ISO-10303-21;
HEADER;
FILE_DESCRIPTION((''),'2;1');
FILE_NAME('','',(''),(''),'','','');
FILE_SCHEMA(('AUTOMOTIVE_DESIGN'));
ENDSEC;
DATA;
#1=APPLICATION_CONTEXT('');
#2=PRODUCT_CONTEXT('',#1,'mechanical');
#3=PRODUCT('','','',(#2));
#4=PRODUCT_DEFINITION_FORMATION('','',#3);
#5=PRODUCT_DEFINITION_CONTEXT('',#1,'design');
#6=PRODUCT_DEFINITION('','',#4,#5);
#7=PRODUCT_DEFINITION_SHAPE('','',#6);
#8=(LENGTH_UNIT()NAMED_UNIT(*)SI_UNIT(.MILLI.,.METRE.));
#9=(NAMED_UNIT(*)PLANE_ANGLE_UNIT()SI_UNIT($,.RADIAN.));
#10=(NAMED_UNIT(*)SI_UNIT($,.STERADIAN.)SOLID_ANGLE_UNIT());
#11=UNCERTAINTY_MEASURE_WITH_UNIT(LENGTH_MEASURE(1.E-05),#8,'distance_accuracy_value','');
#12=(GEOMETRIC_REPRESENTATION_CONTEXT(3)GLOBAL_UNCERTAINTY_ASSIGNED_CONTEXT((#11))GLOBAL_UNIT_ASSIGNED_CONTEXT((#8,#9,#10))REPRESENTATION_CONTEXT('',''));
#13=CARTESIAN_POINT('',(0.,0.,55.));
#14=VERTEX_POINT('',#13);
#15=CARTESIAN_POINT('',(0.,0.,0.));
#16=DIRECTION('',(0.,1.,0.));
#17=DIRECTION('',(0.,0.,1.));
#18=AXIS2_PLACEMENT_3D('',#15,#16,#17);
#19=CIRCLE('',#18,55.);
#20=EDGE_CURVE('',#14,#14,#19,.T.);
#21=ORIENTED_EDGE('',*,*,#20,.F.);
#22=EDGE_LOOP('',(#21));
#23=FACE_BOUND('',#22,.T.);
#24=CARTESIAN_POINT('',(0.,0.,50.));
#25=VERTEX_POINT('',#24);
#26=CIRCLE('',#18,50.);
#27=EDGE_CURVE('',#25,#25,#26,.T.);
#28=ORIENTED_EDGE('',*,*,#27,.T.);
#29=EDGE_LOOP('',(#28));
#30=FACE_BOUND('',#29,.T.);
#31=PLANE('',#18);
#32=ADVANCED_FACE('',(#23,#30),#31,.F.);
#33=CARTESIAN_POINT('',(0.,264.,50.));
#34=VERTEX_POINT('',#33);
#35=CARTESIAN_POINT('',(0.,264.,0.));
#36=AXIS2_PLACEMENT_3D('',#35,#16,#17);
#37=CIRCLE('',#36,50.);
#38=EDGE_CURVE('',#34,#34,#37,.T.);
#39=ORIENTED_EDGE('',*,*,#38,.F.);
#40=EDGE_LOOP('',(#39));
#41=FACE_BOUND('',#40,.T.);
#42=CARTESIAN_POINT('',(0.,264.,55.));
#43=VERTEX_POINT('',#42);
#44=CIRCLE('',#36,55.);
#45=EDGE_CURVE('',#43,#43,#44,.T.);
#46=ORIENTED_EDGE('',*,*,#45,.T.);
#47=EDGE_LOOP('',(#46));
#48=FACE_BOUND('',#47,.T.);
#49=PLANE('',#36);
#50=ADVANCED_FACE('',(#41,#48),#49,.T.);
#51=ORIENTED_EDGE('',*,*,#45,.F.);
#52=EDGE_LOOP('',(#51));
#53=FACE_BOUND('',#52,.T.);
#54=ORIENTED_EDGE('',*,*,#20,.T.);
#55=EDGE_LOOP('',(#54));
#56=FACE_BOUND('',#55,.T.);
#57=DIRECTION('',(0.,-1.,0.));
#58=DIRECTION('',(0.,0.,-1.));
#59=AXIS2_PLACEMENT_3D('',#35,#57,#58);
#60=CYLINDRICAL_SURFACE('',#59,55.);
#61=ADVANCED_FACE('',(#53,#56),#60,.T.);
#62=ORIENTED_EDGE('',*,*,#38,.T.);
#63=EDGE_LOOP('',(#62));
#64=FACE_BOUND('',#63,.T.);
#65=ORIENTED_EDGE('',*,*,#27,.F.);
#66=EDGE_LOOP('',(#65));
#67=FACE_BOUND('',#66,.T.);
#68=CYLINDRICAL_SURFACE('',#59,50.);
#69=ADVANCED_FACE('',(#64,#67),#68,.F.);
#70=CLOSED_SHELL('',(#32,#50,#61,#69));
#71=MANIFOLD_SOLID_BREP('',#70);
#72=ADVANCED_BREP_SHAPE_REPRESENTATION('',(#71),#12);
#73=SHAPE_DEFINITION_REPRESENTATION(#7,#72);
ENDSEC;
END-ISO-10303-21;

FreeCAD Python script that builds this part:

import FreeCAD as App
import Part
import Sketcher

V = App.Vector

doc = App.newDocument("Part")
body = doc.addObject("PartDesign::Body", "Body")

sketch1 = body.newObject("Sketcher::SketchObject", "Sketch")
sketch1.AttachmentSupport = (doc.getObject("XZ_Plane"), [""])
sketch1.MapMode = "FlatFace"
sketch1.addGeometry([
    Part.Circle(V(0, 0, 0), V(0, 0, 1), 55),
    Part.Circle(V(0, 0, 0), V(0, 0, 1), 50),
], False)
sketch1.addConstraint([
    Sketcher.Constraint("Coincident", 0, 3, -1, 1),
    Sketcher.Constraint("Coincident", 1, 3, -1, 1),
    Sketcher.Constraint("Diameter", 0, 110.0),
    Sketcher.Constraint("Diameter", 1, 100.0),
])
pad1 = body.newObject("PartDesign::Pad", "Pad")
pad1.Profile = sketch1
pad1.Length = 264
pad1.Reversed = True

doc.recompute()
